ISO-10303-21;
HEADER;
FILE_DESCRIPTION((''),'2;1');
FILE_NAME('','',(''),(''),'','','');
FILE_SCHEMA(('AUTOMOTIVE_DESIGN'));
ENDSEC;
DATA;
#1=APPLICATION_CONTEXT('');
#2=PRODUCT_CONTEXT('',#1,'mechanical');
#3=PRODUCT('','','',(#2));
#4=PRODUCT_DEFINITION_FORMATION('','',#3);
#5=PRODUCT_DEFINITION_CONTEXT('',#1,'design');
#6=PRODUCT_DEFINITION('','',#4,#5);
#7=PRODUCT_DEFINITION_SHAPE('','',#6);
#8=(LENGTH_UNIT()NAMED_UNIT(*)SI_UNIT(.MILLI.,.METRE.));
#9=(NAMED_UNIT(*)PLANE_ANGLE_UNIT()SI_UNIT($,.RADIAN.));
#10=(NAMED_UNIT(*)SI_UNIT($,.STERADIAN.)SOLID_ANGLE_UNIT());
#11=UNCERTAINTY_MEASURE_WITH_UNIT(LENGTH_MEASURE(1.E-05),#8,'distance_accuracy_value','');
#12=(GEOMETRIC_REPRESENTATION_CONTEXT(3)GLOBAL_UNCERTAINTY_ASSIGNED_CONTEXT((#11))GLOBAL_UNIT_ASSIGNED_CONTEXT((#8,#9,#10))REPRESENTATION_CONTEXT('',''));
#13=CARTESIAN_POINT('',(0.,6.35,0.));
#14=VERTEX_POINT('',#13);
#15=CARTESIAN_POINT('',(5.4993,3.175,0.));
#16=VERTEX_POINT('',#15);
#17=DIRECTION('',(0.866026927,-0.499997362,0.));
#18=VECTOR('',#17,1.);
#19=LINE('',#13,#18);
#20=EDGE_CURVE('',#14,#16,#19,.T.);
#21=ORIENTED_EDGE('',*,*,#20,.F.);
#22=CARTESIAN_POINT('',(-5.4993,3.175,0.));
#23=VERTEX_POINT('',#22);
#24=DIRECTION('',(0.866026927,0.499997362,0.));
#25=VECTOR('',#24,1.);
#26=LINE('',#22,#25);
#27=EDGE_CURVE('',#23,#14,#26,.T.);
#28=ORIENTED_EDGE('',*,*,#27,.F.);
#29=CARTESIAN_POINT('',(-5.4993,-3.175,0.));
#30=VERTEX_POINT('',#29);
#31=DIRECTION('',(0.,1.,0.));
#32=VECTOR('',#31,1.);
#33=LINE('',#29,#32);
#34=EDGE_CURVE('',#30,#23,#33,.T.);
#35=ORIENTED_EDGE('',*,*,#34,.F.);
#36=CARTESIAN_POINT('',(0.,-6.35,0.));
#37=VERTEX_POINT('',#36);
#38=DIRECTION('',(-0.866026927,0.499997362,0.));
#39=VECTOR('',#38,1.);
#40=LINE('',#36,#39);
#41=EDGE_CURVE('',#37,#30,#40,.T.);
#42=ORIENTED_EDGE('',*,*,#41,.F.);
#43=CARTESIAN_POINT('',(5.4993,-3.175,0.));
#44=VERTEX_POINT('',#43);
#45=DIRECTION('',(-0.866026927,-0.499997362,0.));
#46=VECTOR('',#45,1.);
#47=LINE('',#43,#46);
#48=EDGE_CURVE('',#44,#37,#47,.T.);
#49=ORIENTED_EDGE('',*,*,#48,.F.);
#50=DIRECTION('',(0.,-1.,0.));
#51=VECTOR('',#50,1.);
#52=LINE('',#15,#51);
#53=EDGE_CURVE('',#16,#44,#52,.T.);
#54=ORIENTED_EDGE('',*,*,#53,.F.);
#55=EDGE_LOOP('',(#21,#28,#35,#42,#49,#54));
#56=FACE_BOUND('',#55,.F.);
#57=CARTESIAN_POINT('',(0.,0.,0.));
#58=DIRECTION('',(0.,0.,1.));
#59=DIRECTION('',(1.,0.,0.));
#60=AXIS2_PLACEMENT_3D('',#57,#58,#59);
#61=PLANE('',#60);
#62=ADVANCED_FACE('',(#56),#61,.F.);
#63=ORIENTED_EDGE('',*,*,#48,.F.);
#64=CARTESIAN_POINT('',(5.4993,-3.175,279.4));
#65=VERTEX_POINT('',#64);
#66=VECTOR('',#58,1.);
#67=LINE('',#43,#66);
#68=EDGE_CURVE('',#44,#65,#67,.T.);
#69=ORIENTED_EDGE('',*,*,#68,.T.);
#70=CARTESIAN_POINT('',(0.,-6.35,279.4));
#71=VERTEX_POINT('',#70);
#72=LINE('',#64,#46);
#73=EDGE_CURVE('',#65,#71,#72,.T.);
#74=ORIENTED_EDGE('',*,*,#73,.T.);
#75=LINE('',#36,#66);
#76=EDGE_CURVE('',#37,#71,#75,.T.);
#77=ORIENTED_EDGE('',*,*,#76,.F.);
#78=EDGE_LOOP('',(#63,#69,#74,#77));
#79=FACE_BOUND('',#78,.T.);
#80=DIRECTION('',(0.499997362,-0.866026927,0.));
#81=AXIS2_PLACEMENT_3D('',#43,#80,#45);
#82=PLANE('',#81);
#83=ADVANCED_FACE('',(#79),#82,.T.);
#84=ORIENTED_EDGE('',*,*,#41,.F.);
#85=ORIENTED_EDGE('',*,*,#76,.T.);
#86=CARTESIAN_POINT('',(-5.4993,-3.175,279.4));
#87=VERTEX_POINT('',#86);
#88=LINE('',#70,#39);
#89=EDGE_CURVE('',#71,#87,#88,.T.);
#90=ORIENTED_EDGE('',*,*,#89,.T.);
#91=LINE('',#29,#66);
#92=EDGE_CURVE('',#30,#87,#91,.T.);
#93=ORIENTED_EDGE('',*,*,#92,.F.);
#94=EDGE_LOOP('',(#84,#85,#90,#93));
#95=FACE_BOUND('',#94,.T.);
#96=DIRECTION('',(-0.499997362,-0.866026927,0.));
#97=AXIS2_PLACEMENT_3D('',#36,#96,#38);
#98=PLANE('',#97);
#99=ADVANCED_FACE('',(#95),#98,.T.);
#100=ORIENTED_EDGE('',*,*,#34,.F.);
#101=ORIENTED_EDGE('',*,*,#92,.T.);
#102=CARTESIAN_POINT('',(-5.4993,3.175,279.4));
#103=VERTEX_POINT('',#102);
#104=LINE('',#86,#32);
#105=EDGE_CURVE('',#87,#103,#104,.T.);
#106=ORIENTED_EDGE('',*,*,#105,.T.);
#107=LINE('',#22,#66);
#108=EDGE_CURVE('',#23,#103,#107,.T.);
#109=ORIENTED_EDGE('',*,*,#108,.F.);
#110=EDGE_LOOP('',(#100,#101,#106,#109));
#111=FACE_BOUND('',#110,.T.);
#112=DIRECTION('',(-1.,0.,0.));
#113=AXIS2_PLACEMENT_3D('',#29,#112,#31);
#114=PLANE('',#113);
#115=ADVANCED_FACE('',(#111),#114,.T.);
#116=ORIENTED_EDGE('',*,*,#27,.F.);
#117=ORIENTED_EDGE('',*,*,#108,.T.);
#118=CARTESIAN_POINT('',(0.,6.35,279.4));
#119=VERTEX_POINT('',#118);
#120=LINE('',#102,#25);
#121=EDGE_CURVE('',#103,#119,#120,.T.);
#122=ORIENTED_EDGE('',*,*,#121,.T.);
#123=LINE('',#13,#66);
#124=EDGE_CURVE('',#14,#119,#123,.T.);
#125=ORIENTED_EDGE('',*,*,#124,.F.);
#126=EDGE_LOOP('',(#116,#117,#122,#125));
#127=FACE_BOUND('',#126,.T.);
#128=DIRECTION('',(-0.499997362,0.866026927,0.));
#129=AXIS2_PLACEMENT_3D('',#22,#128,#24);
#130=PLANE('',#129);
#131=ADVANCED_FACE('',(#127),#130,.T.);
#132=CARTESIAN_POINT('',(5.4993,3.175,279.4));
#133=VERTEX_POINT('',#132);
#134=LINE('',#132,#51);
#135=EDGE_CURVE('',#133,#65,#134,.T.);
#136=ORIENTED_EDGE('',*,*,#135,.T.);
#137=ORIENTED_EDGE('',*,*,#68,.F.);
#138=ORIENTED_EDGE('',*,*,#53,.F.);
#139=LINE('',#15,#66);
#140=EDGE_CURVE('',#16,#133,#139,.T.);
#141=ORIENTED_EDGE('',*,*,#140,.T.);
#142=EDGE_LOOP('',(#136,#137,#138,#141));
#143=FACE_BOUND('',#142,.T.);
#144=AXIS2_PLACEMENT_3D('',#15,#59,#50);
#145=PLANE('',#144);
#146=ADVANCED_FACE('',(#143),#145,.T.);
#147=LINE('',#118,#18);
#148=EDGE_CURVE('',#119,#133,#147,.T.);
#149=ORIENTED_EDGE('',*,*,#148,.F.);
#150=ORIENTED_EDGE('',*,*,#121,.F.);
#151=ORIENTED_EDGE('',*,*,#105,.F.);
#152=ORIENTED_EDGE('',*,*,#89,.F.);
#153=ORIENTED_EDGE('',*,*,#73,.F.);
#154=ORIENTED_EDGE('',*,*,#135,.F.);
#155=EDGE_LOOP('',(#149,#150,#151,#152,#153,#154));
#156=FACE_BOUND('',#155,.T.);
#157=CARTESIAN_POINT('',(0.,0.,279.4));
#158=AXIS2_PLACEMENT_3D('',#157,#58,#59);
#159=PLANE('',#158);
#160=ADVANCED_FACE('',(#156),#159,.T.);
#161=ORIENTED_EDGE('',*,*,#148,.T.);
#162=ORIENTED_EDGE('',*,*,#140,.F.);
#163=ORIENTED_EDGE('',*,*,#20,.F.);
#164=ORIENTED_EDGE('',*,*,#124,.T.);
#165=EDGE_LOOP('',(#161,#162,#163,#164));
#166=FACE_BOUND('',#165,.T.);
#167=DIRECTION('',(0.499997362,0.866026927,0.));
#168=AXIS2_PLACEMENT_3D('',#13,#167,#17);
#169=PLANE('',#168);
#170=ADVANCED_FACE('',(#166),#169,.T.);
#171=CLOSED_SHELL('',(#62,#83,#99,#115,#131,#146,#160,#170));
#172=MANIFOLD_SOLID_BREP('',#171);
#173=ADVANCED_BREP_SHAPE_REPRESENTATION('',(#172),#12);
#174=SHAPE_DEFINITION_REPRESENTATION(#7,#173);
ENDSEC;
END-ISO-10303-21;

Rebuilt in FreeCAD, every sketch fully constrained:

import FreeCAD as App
import Part
import Sketcher
from FreeCAD import Vector
Q = App.Units.Quantity


def add_polygon(sketch, points):
    """Adds a closed chain of lines whose ends are joined by coincident constraints."""
    first, n = sketch.GeometryCount, len(points)
    for a, b in zip(points, points[1:] + points[:1]):
        sketch.addGeometry(Part.LineSegment(App.Vector(*a, 0), App.Vector(*b, 0)), False)
    for i in range(n):
        sketch.addConstraint(Sketcher.Constraint("Coincident", first + i, 2, first + (i + 1) % n, 1))

doc = App.newDocument("Part")
params = doc.addObject("Spreadsheet::Sheet", "Params")
for row, (alias, value) in enumerate([
    ("sketch1_height", "0.25 in"),
    ("pad1_length", "11 in"),
], start=1):
    params.set(f"A{row}", alias)
    params.set(f"B{row}", "=" + value)
    params.setAlias(f"B{row}", alias)

body = doc.addObject("PartDesign::Body", "Body")

# Sketch on XY plane
sketch1 = doc.addObject("Sketcher::SketchObject", "Sketch")
body.addObject(sketch1)
sketch1.AttachmentSupport = (doc.XY_Plane, [""])
sketch1.MapMode = "FlatFace"
add_polygon(sketch1, [(-5, -3), (0, -6), (5, -3), (5, 3), (0, 6), (-5, 3)])  # lines 0-5
sketch1.addConstraint([
    Sketcher.Constraint("Vertical", 2),
    Sketcher.Constraint("Vertical", 5),
    Sketcher.Constraint("Symmetric", 0, 2, 3, 2, -1, 1),
    Sketcher.Constraint("Symmetric", 1, 2, 4, 2, -1, 1),
    Sketcher.Constraint("PointOnObject", 0, 2, -2),
    Sketcher.Constraint("Parallel", 0, 3),
    Sketcher.Constraint("Horizontal", 2, 2, 4, 2),
    Sketcher.Constraint("DistanceY", 0, 2, 3, 2, Q("0.5 in")),
    Sketcher.Constraint("Angle", 0, Q("-29.9998 deg")),
    Sketcher.Constraint("DistanceY", 2, 1, 2, 2, Q("0.25 in")),
])
sketch1.setExpression("Constraints[15]", "Params.sketch1_height")
pad1 = doc.addObject("PartDesign::Pad", "Pad")
body.addObject(pad1)
pad1.Profile = sketch1
pad1.setExpression("Length", "Params.pad1_length")

doc.recompute()
